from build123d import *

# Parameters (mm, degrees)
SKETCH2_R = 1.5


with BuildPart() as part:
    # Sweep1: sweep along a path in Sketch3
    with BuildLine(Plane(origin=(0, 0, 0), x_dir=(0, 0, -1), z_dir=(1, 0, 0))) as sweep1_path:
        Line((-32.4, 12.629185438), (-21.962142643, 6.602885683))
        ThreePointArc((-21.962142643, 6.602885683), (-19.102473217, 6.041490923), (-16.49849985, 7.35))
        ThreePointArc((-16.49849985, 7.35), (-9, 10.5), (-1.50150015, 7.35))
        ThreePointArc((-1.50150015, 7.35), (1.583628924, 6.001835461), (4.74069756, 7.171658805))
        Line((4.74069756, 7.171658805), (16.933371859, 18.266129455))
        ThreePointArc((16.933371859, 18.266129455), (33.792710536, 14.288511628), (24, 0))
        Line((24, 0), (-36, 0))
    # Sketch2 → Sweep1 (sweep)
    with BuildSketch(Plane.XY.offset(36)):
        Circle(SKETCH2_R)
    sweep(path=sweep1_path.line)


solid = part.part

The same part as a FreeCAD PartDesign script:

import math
import FreeCAD as App
import Part
import Sketcher

V = App.Vector
Q = App.Units.Quantity

doc = App.newDocument("Part")
body = doc.addObject("PartDesign::Body", "Body")

# Sketch on XY plane
sketch1 = doc.addObject("Sketcher::SketchObject", "Sketch")
body.addObject(sketch1)
sketch1.AttachmentSupport = (doc.XY_Plane, [""])
sketch1.MapMode = "FlatFace"
sketch1.AttachmentOffset = App.Placement(V(0, 0, 36), App.Rotation())
sketch1.addGeometry(Part.Circle(V(0, 0, 0), V(0, 0, 1), 1.5), False)
sketch1.addConstraint([
    Sketcher.Constraint("Coincident", 0, 3, -1, 1),
    Sketcher.Constraint("Diameter", 0, Q("3 mm")),
])

# Sketch on YZ plane
sketch2 = doc.addObject("Sketcher::SketchObject", "Sketch001")
body.addObject(sketch2)
sketch2.AttachmentSupport = (doc.YZ_Plane, [""])
sketch2.MapMode = "FlatFace"
sketch2.addGeometry([
    Part.LineSegment(V(12.6, 32.4, 0), V(6.6, 22, 0)),  # 0
    Part.ArcOfCircle(Part.Circle(V(10.5, 19.7, 0), V(0, 0, 1), 4.5), math.radians(150), math.radians(226)),  # 1
    Part.ArcOfCircle(Part.Circle(V(0, 9, 0), V(0, 0, 1), 10.5), math.radians(-46), math.radians(46)),  # 2
    Part.ArcOfCircle(Part.Circle(V(10.5, -1.7, 0), V(0, 0, 1), 4.5), math.radians(134), math.radians(222)),  # 3
    Part.LineSegment(V(7.2, -4.7, 0), V(18.3, -16.9, 0)),  # 4
    Part.ArcOfCircle(Part.Circle(V(10.5, -24, 0), V(0, 0, 1), 10.5), math.radians(180), math.radians(402)),  # 5
    Part.LineSegment(V(0, -24, 0), V(0, 36, 0)),  # 6
], False)
sketch2.addConstraint([
    Sketcher.Constraint("Tangent", 0, 2, 1, 1),
    Sketcher.Constraint("Tangent", 1, 2, 2, 2),
    Sketcher.Constraint("Tangent", 2, 1, 3, 1),
    Sketcher.Constraint("Tangent", 3, 2, 4, 1),
    Sketcher.Constraint("Tangent", 4, 2, 5, 2),
    Sketcher.Constraint("Tangent", 5, 1, 6, 1),
    Sketcher.Constraint("Vertical", 6),
    Sketcher.Constraint("Equal", 1, 3),
    Sketcher.Constraint("Equal", 2, 5),
    Sketcher.Constraint("PointOnObject", 2, 3, -2),
    Sketcher.Constraint("PointOnObject", 5, 1, -2),
    Sketcher.Constraint("Vertical", 1, 3, 3, 3),
    Sketcher.Constraint("Vertical", 3, 3, 5, 3),
    Sketcher.Constraint("Radius", 1, Q("4.5 mm")),
    Sketcher.Constraint("Radius", 2, Q("10.5 mm")),
    Sketcher.Constraint("DistanceY", 6, 1, 6, 2, Q("60 mm")),
    Sketcher.Constraint("Angle", 0, Q("-120 deg")),
    Sketcher.Constraint("DistanceY", -1, 1, 2, 3, Q("9 mm")),
    Sketcher.Constraint("DistanceY", 5, 3, -1, 1, Q("24 mm")),
    Sketcher.Constraint("DistanceY", -1, 1, 0, 1, Q("32.4 mm")),
])
doc.recompute()

additivepipe = doc.addObject("PartDesign::AdditivePipe", "AdditivePipe")
body.addObject(additivepipe)
additivepipe.Profile = sketch1
additivepipe.Spine = (sketch2, ["Edge1", "Edge2", "Edge3", "Edge4", "Edge5", "Edge6", "Edge7"])

doc.recompute()
